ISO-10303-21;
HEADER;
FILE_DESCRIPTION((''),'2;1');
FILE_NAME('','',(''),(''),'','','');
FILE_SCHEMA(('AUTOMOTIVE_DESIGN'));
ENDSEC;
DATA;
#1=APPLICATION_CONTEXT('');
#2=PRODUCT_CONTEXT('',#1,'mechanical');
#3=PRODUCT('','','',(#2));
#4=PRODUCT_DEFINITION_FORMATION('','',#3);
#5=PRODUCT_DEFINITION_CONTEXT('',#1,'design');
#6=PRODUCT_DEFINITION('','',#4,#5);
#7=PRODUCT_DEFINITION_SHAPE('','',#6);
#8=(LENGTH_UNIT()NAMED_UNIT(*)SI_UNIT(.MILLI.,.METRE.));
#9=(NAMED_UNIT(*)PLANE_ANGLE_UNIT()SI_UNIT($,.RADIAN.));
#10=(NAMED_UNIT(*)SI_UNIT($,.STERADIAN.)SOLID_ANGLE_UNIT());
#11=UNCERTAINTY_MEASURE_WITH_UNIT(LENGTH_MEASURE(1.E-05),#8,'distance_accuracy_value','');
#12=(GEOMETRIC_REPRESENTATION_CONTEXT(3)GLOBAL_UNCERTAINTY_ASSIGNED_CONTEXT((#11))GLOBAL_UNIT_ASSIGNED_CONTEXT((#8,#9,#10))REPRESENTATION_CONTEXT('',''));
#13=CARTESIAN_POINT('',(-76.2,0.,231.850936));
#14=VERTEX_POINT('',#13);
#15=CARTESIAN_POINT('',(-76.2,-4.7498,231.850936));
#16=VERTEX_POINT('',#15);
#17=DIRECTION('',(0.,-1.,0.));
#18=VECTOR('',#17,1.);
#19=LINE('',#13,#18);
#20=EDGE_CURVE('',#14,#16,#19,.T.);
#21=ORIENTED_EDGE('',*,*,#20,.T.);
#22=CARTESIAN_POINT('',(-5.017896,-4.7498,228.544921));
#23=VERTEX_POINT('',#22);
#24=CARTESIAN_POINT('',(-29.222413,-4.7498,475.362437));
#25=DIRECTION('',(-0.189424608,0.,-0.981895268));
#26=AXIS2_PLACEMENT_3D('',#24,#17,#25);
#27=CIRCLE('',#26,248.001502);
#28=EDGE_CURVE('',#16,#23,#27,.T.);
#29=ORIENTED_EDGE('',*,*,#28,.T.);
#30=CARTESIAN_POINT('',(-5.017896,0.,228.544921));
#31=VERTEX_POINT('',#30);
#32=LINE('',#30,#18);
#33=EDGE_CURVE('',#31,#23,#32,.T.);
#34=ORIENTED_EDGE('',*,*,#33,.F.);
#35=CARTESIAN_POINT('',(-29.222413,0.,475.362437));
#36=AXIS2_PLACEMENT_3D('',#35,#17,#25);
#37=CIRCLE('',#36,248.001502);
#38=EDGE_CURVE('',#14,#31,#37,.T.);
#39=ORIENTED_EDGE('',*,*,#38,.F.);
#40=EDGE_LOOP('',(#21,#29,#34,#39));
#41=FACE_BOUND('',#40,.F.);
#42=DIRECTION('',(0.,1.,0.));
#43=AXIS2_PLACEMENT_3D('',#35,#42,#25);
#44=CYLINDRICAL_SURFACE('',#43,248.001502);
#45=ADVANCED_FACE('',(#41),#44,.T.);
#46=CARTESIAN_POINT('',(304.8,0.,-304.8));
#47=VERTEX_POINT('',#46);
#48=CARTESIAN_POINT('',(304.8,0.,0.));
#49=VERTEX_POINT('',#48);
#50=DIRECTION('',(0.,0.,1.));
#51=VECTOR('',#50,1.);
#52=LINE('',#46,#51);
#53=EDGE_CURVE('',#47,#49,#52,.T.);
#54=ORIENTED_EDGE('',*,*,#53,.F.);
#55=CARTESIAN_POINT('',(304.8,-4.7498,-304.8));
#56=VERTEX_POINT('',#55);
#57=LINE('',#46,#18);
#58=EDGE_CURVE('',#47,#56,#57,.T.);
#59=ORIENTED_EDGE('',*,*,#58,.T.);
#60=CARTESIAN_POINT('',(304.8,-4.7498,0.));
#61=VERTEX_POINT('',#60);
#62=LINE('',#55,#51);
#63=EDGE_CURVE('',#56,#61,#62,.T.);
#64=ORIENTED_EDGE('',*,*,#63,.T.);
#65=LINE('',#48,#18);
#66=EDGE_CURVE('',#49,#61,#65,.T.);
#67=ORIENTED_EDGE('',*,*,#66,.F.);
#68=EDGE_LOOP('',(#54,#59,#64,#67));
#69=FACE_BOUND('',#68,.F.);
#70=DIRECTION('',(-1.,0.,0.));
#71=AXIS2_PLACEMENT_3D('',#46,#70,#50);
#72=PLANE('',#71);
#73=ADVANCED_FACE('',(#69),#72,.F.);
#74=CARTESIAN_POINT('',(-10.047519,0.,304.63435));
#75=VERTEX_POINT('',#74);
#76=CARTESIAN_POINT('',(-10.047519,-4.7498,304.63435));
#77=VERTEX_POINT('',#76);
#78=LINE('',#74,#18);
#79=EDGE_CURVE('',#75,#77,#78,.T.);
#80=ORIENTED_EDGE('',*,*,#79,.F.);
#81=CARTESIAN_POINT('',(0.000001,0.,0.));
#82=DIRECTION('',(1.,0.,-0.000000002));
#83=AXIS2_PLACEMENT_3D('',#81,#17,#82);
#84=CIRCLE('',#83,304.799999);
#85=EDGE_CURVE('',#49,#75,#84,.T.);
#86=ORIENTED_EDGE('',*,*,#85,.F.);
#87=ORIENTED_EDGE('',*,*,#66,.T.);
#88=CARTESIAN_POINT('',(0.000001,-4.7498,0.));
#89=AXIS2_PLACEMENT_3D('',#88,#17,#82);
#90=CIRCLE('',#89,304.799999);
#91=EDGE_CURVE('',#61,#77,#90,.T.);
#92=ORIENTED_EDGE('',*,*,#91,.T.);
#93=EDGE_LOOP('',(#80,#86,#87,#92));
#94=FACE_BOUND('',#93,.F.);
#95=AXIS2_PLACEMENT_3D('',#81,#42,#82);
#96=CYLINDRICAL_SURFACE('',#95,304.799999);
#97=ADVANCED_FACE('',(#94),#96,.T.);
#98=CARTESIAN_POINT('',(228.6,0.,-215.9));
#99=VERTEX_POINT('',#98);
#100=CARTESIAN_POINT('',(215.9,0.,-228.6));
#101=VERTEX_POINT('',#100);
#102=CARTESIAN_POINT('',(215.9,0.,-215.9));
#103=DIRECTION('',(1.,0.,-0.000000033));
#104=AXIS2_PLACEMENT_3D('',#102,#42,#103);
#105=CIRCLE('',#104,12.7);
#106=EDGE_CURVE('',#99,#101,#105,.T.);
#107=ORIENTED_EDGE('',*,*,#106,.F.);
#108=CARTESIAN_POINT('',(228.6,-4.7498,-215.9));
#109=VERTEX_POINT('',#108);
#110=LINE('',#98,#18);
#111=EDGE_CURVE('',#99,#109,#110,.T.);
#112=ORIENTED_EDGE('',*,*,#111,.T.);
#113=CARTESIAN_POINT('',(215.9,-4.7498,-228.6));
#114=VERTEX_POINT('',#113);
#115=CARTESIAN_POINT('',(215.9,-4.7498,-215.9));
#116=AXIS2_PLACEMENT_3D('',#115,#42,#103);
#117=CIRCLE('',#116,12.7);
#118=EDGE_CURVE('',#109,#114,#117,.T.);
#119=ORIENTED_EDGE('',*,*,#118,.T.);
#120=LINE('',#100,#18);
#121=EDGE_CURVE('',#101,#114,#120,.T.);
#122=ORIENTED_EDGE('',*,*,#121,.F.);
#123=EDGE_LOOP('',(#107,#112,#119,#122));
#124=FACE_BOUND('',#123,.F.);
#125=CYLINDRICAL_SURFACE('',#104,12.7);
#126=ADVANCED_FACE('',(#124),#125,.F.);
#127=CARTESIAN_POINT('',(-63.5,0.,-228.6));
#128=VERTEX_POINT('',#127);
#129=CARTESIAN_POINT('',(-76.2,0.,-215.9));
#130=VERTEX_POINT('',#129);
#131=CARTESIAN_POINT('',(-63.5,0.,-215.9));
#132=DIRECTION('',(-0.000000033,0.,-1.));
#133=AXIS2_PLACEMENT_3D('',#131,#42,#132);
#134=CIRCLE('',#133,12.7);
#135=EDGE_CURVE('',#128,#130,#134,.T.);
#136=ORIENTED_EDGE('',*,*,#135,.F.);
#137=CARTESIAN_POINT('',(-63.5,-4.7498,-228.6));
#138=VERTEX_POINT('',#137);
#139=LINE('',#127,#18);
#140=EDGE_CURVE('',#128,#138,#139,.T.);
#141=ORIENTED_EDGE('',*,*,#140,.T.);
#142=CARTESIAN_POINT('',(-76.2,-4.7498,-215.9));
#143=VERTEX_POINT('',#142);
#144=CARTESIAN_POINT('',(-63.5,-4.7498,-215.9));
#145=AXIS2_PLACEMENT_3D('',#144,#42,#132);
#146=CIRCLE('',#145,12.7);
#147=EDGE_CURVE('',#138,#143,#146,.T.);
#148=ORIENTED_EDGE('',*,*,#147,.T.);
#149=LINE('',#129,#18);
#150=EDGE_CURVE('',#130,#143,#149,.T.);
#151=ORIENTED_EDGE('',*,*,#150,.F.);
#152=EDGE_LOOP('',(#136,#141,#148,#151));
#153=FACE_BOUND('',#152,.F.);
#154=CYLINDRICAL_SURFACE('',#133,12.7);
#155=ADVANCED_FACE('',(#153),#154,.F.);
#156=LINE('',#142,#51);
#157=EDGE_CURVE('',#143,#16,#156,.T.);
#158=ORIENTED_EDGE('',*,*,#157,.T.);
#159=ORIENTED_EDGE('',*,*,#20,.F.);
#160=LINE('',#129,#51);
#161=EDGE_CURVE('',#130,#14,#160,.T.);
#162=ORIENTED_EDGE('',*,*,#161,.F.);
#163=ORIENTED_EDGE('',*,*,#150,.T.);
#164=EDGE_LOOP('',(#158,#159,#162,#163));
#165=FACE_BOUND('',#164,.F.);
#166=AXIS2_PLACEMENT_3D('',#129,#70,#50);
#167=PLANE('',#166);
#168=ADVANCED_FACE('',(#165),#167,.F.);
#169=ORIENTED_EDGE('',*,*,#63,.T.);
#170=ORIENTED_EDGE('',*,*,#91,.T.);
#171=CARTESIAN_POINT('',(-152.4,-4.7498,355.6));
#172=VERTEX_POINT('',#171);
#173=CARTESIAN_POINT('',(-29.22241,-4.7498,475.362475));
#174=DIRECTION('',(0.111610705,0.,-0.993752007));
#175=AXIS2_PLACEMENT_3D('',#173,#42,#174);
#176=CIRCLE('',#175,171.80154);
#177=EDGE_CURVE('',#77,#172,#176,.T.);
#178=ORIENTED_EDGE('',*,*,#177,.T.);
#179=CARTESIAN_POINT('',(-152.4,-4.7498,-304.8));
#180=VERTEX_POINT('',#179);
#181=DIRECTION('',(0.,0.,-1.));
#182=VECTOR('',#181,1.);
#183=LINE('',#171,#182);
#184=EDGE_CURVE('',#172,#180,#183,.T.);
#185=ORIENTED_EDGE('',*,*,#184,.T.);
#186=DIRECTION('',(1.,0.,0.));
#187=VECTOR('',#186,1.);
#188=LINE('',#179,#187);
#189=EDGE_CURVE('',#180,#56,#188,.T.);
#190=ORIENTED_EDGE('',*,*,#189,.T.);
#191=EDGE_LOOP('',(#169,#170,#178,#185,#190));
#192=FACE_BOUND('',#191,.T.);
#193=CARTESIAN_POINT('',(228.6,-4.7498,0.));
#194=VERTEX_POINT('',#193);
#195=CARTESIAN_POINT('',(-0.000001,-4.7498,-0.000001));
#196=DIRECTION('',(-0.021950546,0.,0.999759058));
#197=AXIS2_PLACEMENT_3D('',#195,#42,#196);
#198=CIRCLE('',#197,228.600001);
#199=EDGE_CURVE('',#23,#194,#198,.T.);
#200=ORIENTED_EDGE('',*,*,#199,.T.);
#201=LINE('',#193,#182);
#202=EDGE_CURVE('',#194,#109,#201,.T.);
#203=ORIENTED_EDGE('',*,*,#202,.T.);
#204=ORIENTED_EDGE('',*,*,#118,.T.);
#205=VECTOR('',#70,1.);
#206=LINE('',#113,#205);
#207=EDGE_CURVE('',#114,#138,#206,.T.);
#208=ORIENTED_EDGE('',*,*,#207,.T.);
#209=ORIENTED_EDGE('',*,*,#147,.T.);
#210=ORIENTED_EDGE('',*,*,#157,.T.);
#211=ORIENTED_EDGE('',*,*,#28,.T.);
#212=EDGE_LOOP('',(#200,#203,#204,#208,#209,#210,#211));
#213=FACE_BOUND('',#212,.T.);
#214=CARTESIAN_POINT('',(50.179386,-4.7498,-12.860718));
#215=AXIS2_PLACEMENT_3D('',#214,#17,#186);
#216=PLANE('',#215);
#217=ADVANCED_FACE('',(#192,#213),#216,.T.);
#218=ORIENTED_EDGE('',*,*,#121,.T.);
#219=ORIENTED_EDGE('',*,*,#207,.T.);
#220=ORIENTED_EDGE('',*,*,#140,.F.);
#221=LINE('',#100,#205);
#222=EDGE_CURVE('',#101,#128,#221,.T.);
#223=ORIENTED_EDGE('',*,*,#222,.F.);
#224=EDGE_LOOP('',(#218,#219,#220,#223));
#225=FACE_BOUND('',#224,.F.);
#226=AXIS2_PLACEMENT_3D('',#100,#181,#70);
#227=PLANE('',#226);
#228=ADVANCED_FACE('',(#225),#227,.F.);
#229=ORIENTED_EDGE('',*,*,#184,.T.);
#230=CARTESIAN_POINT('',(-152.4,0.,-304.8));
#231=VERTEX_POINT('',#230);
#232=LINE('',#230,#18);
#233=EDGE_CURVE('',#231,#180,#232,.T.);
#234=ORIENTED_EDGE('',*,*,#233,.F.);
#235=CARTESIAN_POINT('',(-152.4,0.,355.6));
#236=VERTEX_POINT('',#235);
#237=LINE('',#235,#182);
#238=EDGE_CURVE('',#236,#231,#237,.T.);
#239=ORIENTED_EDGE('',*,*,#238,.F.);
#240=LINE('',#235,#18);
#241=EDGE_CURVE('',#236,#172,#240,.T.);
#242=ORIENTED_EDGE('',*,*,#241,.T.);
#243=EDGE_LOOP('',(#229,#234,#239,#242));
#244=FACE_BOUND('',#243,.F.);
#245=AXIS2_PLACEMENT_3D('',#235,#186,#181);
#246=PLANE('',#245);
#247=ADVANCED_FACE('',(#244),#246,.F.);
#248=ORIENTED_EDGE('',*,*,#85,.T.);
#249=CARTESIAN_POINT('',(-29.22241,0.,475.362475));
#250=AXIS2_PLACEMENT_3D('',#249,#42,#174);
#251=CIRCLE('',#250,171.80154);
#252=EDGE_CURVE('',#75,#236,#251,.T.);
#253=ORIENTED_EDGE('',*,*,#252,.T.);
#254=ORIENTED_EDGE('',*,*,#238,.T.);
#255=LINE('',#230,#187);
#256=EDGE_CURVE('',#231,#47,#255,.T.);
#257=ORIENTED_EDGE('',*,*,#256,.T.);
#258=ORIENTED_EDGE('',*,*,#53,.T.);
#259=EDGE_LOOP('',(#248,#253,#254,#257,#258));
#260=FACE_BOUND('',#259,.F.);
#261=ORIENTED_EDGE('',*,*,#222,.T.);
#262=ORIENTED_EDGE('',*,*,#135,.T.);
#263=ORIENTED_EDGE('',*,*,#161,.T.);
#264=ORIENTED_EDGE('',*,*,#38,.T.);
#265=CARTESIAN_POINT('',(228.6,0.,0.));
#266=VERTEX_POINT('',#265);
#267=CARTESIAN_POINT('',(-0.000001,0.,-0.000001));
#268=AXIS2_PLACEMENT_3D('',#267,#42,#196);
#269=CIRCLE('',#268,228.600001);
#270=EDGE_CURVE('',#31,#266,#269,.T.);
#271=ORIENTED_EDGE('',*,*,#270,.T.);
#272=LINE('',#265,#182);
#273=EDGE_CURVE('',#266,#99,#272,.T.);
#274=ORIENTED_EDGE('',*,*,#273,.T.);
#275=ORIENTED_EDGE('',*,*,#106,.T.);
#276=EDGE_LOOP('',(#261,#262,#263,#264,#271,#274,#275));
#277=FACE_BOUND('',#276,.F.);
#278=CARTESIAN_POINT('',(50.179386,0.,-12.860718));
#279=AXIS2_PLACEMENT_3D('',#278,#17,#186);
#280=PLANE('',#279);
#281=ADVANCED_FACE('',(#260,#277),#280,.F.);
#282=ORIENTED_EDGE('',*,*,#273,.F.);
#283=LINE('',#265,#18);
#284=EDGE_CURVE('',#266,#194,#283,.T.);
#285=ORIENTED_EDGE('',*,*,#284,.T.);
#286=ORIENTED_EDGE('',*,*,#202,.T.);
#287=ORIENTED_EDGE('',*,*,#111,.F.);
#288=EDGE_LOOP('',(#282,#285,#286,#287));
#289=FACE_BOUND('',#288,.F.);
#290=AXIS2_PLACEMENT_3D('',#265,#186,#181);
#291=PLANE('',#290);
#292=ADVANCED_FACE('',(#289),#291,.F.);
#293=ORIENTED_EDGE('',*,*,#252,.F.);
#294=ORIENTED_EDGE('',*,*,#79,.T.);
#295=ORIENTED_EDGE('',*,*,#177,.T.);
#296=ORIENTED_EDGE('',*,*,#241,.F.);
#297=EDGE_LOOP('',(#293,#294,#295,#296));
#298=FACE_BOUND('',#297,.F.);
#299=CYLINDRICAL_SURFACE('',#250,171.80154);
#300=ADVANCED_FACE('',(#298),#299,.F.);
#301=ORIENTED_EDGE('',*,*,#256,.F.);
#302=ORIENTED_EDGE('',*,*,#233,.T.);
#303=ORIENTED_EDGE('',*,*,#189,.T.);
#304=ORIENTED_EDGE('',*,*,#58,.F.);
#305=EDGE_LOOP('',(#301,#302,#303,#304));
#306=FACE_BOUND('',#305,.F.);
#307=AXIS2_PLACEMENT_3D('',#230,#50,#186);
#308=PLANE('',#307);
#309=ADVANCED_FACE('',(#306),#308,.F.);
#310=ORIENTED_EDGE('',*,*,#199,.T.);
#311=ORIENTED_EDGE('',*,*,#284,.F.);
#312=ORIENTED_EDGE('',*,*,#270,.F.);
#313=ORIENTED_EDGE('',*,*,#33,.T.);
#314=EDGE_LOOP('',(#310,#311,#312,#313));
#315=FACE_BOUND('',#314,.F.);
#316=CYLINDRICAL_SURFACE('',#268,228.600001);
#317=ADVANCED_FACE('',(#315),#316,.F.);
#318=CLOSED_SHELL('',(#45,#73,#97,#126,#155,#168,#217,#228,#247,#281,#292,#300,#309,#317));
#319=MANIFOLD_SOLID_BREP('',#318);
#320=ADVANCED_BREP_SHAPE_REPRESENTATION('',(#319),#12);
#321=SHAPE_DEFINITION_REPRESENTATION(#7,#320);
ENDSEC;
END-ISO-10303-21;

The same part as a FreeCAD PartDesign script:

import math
import FreeCAD as App
import Part
import Sketcher
from FreeCAD import Vector
Q = App.Units.Quantity

doc = App.newDocument("Part")
body = doc.addObject("PartDesign::Body", "Body")

sketch1 = body.newObject("Sketcher::SketchObject", "Sketch")
sketch1.AttachmentSupport = (doc.getObject("XZ_Plane"), [""])
sketch1.MapMode = "FlatFace"
sketch1.addGeometry([
    Part.LineSegment(Vector(305, -305, 0), Vector(305, 0, 0)),
    Part.ArcOfCircle(Part.Circle(Vector(0, 0, 0), Vector(0, 0, 1), 305), math.radians(0), math.radians(92)),
    Part.ArcOfCircle(Part.Circle(Vector(-29, 475, 0), Vector(0, 0, 1), 172), math.radians(-136), math.radians(-84)),
    Part.LineSegment(Vector(-152, 356, 0), Vector(-152, -305, 0)),
    Part.LineSegment(Vector(-152, -305, 0), Vector(305, -305, 0)),
    Part.ArcOfCircle(Part.Circle(Vector(-29, 475, 0), Vector(0, 0, 1), 248), math.radians(-100.92), math.radians(-84.4)),
    Part.ArcOfCircle(Part.Circle(Vector(0, 0, 0), Vector(0, 0, 1), 229), math.radians(0), math.radians(91)),
    Part.LineSegment(Vector(229, 0, 0), Vector(229, -216, 0)),
    Part.ArcOfCircle(Part.Circle(Vector(216, -216, 0), Vector(0, 0, 1), 13), math.radians(-90), math.radians(0)),
    Part.LineSegment(Vector(216, -229, 0), Vector(-64, -229, 0)),
    Part.ArcOfCircle(Part.Circle(Vector(-63, -216, 0), Vector(0, 0, 1), 13), math.radians(-180), math.radians(-90)),
    Part.LineSegment(Vector(-76, -216, 0), Vector(-76, 232, 0)),
], False)
sketch1.addConstraint([
    Sketcher.Constraint("Tangent", 0, 2, 1, 1),
    Sketcher.Constraint("Coincident", 1, 2, 2, 2),
    Sketcher.Constraint("Coincident", 2, 1, 3, 1),
    Sketcher.Constraint("Coincident", 3, 2, 4, 1),
    Sketcher.Constraint("Coincident", 4, 2, 0, 1),
    Sketcher.Constraint("Coincident", 5, 2, 6, 2),
    Sketcher.Constraint("Tangent", 6, 1, 7, 1),
    Sketcher.Constraint("Tangent", 7, 2, 8, 2),
    Sketcher.Constraint("Tangent", 8, 1, 9, 1),
    Sketcher.Constraint("Tangent", 9, 2, 10, 2),
    Sketcher.Constraint("Tangent", 10, 1, 11, 1),
    Sketcher.Constraint("Coincident", 11, 2, 5, 1),
    Sketcher.Constraint("Vertical", 0),
    Sketcher.Constraint("Vertical", 3),
    Sketcher.Constraint("Horizontal", 4),
    Sketcher.Constraint("Vertical", 7),
    Sketcher.Constraint("Horizontal", 9),
    Sketcher.Constraint("Vertical", 11),
    Sketcher.Constraint("Coincident", 1, 3, -1, 1),
    Sketcher.Constraint("Coincident", 6, 3, -1, 1),
    Sketcher.Constraint("Equal", 8, 10),
    Sketcher.Constraint("Radius", 1, Q("12 in")),
    Sketcher.Constraint("Radius", 6, Q("9 in")),
    Sketcher.Constraint("Radius", 8, Q("0.5 in")),
    Sketcher.Constraint("DistanceX", 4, 1, 4, 2, Q("18 in")),
    Sketcher.Constraint("DistanceX", 9, 2, 9, 1, Q("11 in")),
    Sketcher.Constraint("DistanceY", 0, 1, 0, 2, Q("12 in")),
    Sketcher.Constraint("DistanceY", 3, 2, 3, 1, Q("26 in")),
    Sketcher.Constraint("DistanceY", 7, 2, 7, 1, Q("8.5 in")),
    Sketcher.Constraint("Radius", 5, 248.001502),
    Sketcher.Constraint("Radius", 2, 171.80154),
    Sketcher.Constraint("DistanceY", 11, 1, 11, 2, 447.750936),
    Sketcher.Constraint("DistanceX", 2, 3, -1, 1, 29.22241),
    Sketcher.Constraint("DistanceY", -1, 1, 5, 2, 228.544921),
])
pad1 = body.newObject("PartDesign::Pad", "Pad")
pad1.Profile = sketch1
pad1.Length = Q("0.187 in")

doc.recompute()
